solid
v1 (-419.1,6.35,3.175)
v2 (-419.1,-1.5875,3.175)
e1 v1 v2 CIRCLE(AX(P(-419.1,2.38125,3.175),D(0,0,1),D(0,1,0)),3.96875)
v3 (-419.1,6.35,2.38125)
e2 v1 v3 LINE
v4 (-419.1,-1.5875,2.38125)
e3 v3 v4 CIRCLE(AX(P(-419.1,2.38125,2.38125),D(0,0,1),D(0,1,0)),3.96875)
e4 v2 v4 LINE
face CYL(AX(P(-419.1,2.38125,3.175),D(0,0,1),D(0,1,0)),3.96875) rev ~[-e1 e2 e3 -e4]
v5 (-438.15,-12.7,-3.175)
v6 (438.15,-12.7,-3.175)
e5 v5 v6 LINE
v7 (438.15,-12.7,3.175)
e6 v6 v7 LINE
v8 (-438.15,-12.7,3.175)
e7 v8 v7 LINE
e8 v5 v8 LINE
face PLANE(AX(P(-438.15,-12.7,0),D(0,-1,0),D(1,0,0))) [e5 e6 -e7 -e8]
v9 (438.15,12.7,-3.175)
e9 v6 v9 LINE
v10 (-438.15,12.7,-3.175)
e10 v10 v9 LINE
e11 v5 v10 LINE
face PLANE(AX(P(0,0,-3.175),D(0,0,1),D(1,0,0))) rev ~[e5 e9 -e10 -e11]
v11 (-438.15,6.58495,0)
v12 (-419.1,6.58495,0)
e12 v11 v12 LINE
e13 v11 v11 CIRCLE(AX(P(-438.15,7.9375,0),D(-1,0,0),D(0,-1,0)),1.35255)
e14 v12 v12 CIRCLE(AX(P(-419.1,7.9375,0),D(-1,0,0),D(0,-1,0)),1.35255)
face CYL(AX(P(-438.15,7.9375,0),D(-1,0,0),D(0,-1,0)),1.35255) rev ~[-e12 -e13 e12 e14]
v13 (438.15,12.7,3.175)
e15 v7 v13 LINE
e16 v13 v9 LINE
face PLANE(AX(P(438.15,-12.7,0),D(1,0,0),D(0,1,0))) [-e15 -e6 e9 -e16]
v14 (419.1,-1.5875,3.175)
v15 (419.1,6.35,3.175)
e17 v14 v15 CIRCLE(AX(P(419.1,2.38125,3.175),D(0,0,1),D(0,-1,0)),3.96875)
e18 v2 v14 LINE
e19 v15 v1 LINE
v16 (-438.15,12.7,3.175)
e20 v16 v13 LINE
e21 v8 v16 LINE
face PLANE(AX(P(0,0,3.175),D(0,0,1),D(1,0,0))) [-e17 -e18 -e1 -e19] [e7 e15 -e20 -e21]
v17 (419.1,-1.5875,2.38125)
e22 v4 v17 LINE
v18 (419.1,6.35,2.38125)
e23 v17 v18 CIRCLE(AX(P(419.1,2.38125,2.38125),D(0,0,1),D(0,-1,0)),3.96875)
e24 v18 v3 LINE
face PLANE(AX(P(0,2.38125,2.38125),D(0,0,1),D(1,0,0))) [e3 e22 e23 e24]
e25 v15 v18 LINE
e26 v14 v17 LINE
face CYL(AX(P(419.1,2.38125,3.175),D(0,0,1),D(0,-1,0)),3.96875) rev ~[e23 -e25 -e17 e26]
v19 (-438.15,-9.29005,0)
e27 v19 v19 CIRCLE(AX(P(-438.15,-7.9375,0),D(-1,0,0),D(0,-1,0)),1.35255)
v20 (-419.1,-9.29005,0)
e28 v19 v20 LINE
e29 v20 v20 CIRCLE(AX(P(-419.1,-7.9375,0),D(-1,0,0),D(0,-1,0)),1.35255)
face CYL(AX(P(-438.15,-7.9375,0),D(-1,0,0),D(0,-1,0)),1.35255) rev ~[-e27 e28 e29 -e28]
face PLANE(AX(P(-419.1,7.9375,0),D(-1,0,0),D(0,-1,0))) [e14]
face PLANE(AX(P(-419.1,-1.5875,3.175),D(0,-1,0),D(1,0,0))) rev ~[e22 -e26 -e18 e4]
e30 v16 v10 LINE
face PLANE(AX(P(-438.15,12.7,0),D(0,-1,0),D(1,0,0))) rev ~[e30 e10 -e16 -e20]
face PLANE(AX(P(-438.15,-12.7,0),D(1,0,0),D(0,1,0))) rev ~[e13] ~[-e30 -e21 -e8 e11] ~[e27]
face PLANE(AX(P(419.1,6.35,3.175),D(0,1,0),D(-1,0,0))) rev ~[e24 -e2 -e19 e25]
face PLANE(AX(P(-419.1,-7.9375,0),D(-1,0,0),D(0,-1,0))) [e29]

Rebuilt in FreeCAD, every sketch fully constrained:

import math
import FreeCAD as App
import Part
import Sketcher
Q = App.Units.Quantity

doc = App.newDocument("Part")
body = doc.addObject("PartDesign::Body", "Body")

# Sketch on XY plane
sketch1 = doc.addObject("Sketcher::SketchObject", "Sketch")
body.addObject(sketch1)
sketch1.AttachmentSupport = (doc.XY_Plane, [""])
sketch1.MapMode = "FlatFace"
sketch1.addGeometry(Part.LineSegment(App.Vector(-438, 13, 0), App.Vector(-438, -13, 0)), False)
sketch1.addGeometry(Part.LineSegment(App.Vector(-438, -13, 0), App.Vector(438, -13, 0)), False)
sketch1.addGeometry(Part.LineSegment(App.Vector(438, -13, 0), App.Vector(438, 13, 0)), False)
sketch1.addGeometry(Part.LineSegment(App.Vector(438, 13, 0), App.Vector(-438, 13, 0)), False)
sketch1.addConstraint(Sketcher.Constraint("Coincident", 0, 2, 1, 1))
sketch1.addConstraint(Sketcher.Constraint("Coincident", 1, 2, 2, 1))
sketch1.addConstraint(Sketcher.Constraint("Coincident", 2, 2, 3, 1))
sketch1.addConstraint(Sketcher.Constraint("Coincident", 3, 2, 0, 1))
sketch1.addConstraint(Sketcher.Constraint("Vertical", 0))
sketch1.addConstraint(Sketcher.Constraint("Horizontal", 1))
sketch1.addConstraint(Sketcher.Constraint("Vertical", 2))
sketch1.addConstraint(Sketcher.Constraint("Horizontal", 3))
sketch1.addConstraint(Sketcher.Constraint("Symmetric", 0, 2, 2, 2, -1, 1))
sketch1.addConstraint(Sketcher.Constraint("DistanceY", 0, 2, 0, 1, Q("1 in")))
sketch1.addConstraint(Sketcher.Constraint("DistanceX", 1, 1, 1, 2, Q("34.5 in")))
pad1 = doc.addObject("PartDesign::Pad", "Pad")
body.addObject(pad1)
pad1.Profile = sketch1
pad1.Length = Q("0.25 in")
pad1.Midplane = True

# Sketch on YZ plane
sketch2 = doc.addObject("Sketcher::SketchObject", "Sketch001")
body.addObject(sketch2)
sketch2.AttachmentSupport = (doc.YZ_Plane, [""])
sketch2.MapMode = "FlatFace"
sketch2.AttachmentOffset = App.Placement(App.Vector(0, 0, -17.25 * 25.4), App.Rotation())
sketch2.addGeometry(Part.Circle(App.Vector(7.9, 0, 0), App.Vector(0, 0, 1), 1.4), False)
sketch2.addGeometry(Part.Circle(App.Vector(-7.9, 0, 0), App.Vector(0, 0, 1), 1.4), False)
sketch2.addConstraint(Sketcher.Constraint("Equal", 0, 1))
sketch2.addConstraint(Sketcher.Constraint("Symmetric", 0, 3, 1, 3, -1, 1))
sketch2.addConstraint(Sketcher.Constraint("PointOnObject", 0, 3, -1))
sketch2.addConstraint(Sketcher.Constraint("Diameter", 0, Q("0.1065 in")))
sketch2.addConstraint(Sketcher.Constraint("DistanceX", -1, 1, 0, 3, Q("0.3125 in")))
pocket1 = doc.addObject("PartDesign::Pocket", "Pocket")
body.addObject(pocket1)
pocket1.Profile = sketch2
pocket1.Length = Q("0.75 in")
pocket1.Reversed = True

# Sketch on XY plane
sketch3 = doc.addObject("Sketcher::SketchObject", "Sketch002")
body.addObject(sketch3)
sketch3.AttachmentSupport = (doc.XY_Plane, [""])
sketch3.MapMode = "FlatFace"
sketch3.AttachmentOffset = App.Placement(App.Vector(0, 0, 0.125 * 25.4), App.Rotation())
sketch3.addGeometry(Part.LineSegment(App.Vector(-419.1, -1.6, 0), App.Vector(419.1, -1.6, 0)), False)
sketch3.addGeometry(Part.ArcOfCircle(Part.Circle(App.Vector(419.1, 2.4, 0), App.Vector(0, 0, 1), 4), math.radians(-90), math.radians(90)), False)
sketch3.addGeometry(Part.LineSegment(App.Vector(419.1, 6.3, 0), App.Vector(-419.1, 6.3, 0)), False)
sketch3.addGeometry(Part.ArcOfCircle(Part.Circle(App.Vector(-419.1, 2.4, 0), App.Vector(0, 0, 1), 4), math.radians(90), math.radians(270)), False)
sketch3.addConstraint(Sketcher.Constraint("Tangent", 0, 2, 1, 1))
sketch3.addConstraint(Sketcher.Constraint("Tangent", 1, 2, 2, 1))
sketch3.addConstraint(Sketcher.Constraint("Tangent", 2, 2, 3, 1))
sketch3.addConstraint(Sketcher.Constraint("Tangent", 3, 2, 0, 1))
sketch3.addConstraint(Sketcher.Constraint("Horizontal", 0))
sketch3.addConstraint(Sketcher.Constraint("Horizontal", 2))
sketch3.addConstraint(Sketcher.Constraint("DistanceX", 0, 1, 0, 2, Q("33 in")))
sketch3.addConstraint(Sketcher.Constraint("Radius", 1, Q("0.15625 in")))
sketch3.addConstraint(Sketcher.Constraint("DistanceX", -1, 1, 1, 3, Q("16.5 in")))
sketch3.addConstraint(Sketcher.Constraint("DistanceY", -1, 1, 1, 2, Q("0.25 in")))
pocket2 = doc.addObject("PartDesign::Pocket", "Pocket001")
body.addObject(pocket2)
pocket2.Profile = sketch3
pocket2.Length = Q("0.03125 in")

doc.recompute()
